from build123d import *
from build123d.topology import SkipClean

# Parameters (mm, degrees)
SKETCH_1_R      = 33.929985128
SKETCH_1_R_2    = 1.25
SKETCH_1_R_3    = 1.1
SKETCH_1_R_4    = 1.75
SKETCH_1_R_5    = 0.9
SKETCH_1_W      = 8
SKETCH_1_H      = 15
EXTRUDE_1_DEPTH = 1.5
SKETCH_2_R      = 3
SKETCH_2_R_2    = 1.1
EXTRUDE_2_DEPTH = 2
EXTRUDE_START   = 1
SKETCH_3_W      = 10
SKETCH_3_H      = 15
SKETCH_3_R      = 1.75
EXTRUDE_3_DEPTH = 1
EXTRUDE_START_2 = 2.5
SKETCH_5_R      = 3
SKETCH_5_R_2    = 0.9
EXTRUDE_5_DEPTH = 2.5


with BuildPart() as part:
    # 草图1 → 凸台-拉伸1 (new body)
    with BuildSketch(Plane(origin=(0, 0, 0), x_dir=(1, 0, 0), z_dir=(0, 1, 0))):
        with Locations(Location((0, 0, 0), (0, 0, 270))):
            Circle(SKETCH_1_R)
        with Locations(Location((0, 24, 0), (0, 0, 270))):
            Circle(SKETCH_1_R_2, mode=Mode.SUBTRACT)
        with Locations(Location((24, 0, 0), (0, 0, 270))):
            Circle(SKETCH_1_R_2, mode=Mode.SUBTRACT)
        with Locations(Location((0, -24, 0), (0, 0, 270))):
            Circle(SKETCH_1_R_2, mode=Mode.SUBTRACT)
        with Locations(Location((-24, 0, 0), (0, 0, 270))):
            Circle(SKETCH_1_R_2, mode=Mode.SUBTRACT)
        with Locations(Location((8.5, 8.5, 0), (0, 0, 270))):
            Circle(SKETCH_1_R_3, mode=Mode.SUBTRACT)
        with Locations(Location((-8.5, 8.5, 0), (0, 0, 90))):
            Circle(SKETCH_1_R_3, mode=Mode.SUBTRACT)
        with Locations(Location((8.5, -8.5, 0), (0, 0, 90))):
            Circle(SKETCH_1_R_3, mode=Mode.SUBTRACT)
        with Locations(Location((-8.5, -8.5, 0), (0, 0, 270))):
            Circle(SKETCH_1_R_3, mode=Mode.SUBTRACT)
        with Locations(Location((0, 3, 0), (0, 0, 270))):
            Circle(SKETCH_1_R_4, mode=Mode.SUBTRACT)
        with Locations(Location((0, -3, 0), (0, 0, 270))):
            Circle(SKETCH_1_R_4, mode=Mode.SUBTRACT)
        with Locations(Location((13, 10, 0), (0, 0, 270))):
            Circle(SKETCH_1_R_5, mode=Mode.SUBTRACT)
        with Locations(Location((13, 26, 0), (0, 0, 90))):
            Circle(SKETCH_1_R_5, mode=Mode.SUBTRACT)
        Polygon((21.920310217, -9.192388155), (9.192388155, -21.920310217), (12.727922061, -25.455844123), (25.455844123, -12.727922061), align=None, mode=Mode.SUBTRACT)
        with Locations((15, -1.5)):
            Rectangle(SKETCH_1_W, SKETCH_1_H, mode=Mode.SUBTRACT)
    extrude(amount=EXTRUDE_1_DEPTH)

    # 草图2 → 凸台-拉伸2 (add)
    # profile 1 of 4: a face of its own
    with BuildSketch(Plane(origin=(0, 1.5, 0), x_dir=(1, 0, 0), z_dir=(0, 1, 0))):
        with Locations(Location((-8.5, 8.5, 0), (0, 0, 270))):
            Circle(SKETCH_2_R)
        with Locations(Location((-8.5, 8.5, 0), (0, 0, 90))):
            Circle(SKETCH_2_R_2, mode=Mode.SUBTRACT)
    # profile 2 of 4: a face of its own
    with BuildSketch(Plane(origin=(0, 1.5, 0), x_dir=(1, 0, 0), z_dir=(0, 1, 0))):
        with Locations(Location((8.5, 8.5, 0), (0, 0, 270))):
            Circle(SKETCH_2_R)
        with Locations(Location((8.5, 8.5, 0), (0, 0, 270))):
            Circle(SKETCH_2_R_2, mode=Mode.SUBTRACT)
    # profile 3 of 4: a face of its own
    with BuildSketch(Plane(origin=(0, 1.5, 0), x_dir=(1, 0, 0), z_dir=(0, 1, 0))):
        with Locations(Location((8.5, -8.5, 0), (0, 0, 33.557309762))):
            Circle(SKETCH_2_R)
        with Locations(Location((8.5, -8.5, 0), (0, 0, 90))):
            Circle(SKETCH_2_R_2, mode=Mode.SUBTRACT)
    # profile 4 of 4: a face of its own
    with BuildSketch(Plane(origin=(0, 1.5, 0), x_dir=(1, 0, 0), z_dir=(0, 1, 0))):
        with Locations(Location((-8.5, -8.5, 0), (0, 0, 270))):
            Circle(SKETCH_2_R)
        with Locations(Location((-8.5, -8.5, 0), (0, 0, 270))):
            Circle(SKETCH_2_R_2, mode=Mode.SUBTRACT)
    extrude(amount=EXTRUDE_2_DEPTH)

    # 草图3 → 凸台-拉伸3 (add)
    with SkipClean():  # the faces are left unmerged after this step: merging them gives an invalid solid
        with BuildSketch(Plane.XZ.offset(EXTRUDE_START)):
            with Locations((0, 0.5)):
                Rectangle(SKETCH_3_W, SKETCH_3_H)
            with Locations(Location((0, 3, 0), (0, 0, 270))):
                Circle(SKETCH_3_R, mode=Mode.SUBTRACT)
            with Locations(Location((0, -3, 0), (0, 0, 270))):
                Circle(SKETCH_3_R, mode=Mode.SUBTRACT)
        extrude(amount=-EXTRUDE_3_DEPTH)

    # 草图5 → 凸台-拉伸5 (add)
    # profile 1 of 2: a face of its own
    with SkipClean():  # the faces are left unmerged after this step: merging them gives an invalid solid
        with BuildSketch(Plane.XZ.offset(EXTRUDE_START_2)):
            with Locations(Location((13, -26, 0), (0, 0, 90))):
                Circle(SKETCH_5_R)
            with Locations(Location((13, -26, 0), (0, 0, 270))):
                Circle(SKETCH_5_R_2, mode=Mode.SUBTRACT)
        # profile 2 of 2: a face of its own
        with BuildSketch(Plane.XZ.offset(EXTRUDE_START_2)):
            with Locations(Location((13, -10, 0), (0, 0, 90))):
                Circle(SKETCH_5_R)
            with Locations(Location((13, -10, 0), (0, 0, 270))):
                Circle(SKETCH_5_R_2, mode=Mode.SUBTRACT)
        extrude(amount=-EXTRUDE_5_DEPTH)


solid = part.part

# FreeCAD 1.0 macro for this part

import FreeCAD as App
import Part
import Sketcher
Q = App.Units.Quantity

doc = App.newDocument("Part")
params = doc.addObject("Spreadsheet::Sheet", "Params")
for row, (alias, value) in enumerate([
    ("sketch1_diameter", "2.5 mm"),
    ("sketch1_diameter2", "2.2 mm"),
    ("sketch1_diameter3", "3.5 mm"),
    ("sketch1_diameter4", "1.8 mm"),
    ("sketch1_width", "8 mm"),
    ("pad1_length", "1.5 mm"),
    ("sketch2_diameter", "6 mm"),
    ("sketch2_diameter2", "2.2 mm"),
    ("pad2_length", "2 mm"),
    ("sketch3_diameter", "3.5 mm"),
    ("sketch3_width", "10 mm"),
    ("sketch3_height", "15 mm"),
    ("pad3_length", "1 mm"),
    ("sketch4_diameter", "6 mm"),
    ("sketch4_diameter2", "1.8 mm"),
    ("pad4_length", "2.5 mm"),
], start=1):
    params.set(f"A{row}", alias)
    params.set(f"B{row}", "=" + value)
    params.setAlias(f"B{row}", alias)

body = doc.addObject("PartDesign::Body", "Body")

# Sketch on XZ plane
sketch1 = body.newObject("Sketcher::SketchObject", "Sketch")
sketch1.AttachmentSupport = (doc.getObject("XZ_Plane"), [""])
sketch1.MapMode = "FlatFace"
sketch1.addGeometry([
    Part.Circle(App.Vector(0, 0, 0), App.Vector(0, 0, 1), 33.9),  # 0
    Part.Circle(App.Vector(0, -24, 0), App.Vector(0, 0, 1), 1.2),  # 1
    Part.Circle(App.Vector(-8.5, -8.5, 0), App.Vector(0, 0, 1), 1.1),  # 2
    Part.Circle(App.Vector(0, -3, 0), App.Vector(0, 0, 1), 1.8),  # 3
    Part.Circle(App.Vector(-24, 0, 0), App.Vector(0, 0, 1), 1.2),  # 4
    Part.Circle(App.Vector(-8.5, 8.5, 0), App.Vector(0, 0, 1), 1.1),  # 5
    Part.Circle(App.Vector(0, 3, 0), App.Vector(0, 0, 1), 1.8),  # 6
    Part.Circle(App.Vector(0, 24, 0), App.Vector(0, 0, 1), 1.2),  # 7
    Part.Circle(App.Vector(8.5, -8.5, 0), App.Vector(0, 0, 1), 1.1),  # 8
    Part.Circle(App.Vector(13, -26, 0), App.Vector(0, 0, 1), 0.9),  # 9
    Part.Circle(App.Vector(13, -10, 0), App.Vector(0, 0, 1), 0.9),  # 10
    Part.Circle(App.Vector(8.5, 8.5, 0), App.Vector(0, 0, 1), 1.1),  # 11
    Part.LineSegment(App.Vector(19, 9, 0), App.Vector(11, 9, 0)),  # 12
    Part.LineSegment(App.Vector(11, 9, 0), App.Vector(11, -6, 0)),  # 13
    Part.LineSegment(App.Vector(11, -6, 0), App.Vector(19, -6, 0)),  # 14
    Part.LineSegment(App.Vector(19, -6, 0), App.Vector(19, 9, 0)),  # 15
    Part.Circle(App.Vector(24, 0, 0), App.Vector(0, 0, 1), 1.2),  # 16
    Part.LineSegment(App.Vector(9.2, 21.9, 0), App.Vector(21.9, 9.2, 0)),  # 17
    Part.LineSegment(App.Vector(21.9, 9.2, 0), App.Vector(25.5, 12.7, 0)),  # 18
    Part.LineSegment(App.Vector(25.5, 12.7, 0), App.Vector(12.7, 25.5, 0)),  # 19
    Part.LineSegment(App.Vector(12.7, 25.5, 0), App.Vector(9.2, 21.9, 0)),  # 20
], False)
sketch1.addConstraint([
    Sketcher.Constraint("Coincident", 12, 2, 13, 1),
    Sketcher.Constraint("Coincident", 13, 2, 14, 1),
    Sketcher.Constraint("Coincident", 14, 2, 15, 1),
    Sketcher.Constraint("Coincident", 15, 2, 12, 1),
    Sketcher.Constraint("Coincident", 17, 2, 18, 1),
    Sketcher.Constraint("Coincident", 18, 2, 19, 1),
    Sketcher.Constraint("Coincident", 19, 2, 20, 1),
    Sketcher.Constraint("Coincident", 20, 2, 17, 1),
    Sketcher.Constraint("Horizontal", 12),
    Sketcher.Constraint("Vertical", 13),
    Sketcher.Constraint("Horizontal", 14),
    Sketcher.Constraint("Vertical", 15),
    Sketcher.Constraint("Coincident", 0, 3, -1, 1),
    Sketcher.Constraint("Equal", 1, 4),
    Sketcher.Constraint("Equal", 2, 5),
    Sketcher.Constraint("Equal", 3, 6),
    Sketcher.Constraint("Equal", 4, 7),
    Sketcher.Constraint("Equal", 5, 8),
    Sketcher.Constraint("Equal", 9, 10),
    Sketcher.Constraint("Equal", 8, 11),
    Sketcher.Constraint("Equal", 7, 16),
    Sketcher.Constraint("Symmetric", 3, 3, 6, 3, -1, 1),
    Sketcher.Constraint("Symmetric", 1, 3, 7, 3, -1, 1),
    Sketcher.Constraint("Symmetric", 5, 3, 8, 3, -1, 1),
    Sketcher.Constraint("Symmetric", 2, 3, 11, 3, -1, 1),
    Sketcher.Constraint("Symmetric", 4, 3, 16, 3, -1, 1),
    Sketcher.Constraint("Symmetric", 2, 3, 8, 3, -2),
    Sketcher.Constraint("PointOnObject", 1, 3, -2),
    Sketcher.Constraint("PointOnObject", 3, 3, -2),
    Sketcher.Constraint("PointOnObject", 4, 3, -1),
    Sketcher.Constraint("Perpendicular", 17, 18),
    Sketcher.Constraint("Perpendicular", 18, 19),
    Sketcher.Constraint("Perpendicular", 19, 20),
    Sketcher.Constraint("Vertical", 9, 3, 10, 3),
    Sketcher.Constraint("Diameter", 1, Q("2.5 mm")),
    Sketcher.Constraint("Diameter", 2, Q("2.2 mm")),
    Sketcher.Constraint("Diameter", 3, Q("3.5 mm")),
    Sketcher.Constraint("Diameter", 9, Q("1.8 mm")),
    Sketcher.Constraint("DistanceX", 12, 2, 12, 1, Q("8 mm")),
    Sketcher.Constraint("DistanceY", 13, 2, 13, 1, Q("15 mm")),
    Sketcher.Constraint("Angle", 17, Q("-45 deg")),
    Sketcher.Constraint("Distance", 17, Q("18 mm")),
    Sketcher.Constraint("Distance", 18, Q("5 mm")),
    Sketcher.Constraint("DistanceY", 1, 3, -1, 1, Q("24 mm")),
    Sketcher.Constraint("DistanceY", 3, 3, -1, 1, Q("3 mm")),
    Sketcher.Constraint("DistanceX", 4, 3, -1, 1, Q("24 mm")),
    Sketcher.Constraint("DistanceX", -1, 1, 9, 3, Q("13 mm")),
    Sketcher.Constraint("DistanceY", 9, 3, -1, 1, Q("26 mm")),
    Sketcher.Constraint("DistanceY", 10, 3, -1, 1, Q("10 mm")),
    Sketcher.Constraint("DistanceX", -1, 1, 12, 2, Q("11 mm")),
    Sketcher.Constraint("DistanceY", -1, 1, 12, 2, Q("9 mm")),
    Sketcher.Constraint("DistanceY", 2, 3, 5, 3, Q("17 mm")),
    Sketcher.Constraint("DistanceX", 2, 3, 8, 3, Q("17 mm")),
    Sketcher.Constraint("Diameter", 0, Q("67.85997 mm")),
    Sketcher.Constraint("DistanceX", -1, 1, 17, 2, Q("21.92031 mm")),
    Sketcher.Constraint("DistanceY", -1, 1, 17, 2, Q("9.192388 mm")),
])
sketch1.setExpression("Constraints[34]", "Params.sketch1_diameter")
sketch1.setExpression("Constraints[35]", "Params.sketch1_diameter2")
sketch1.setExpression("Constraints[36]", "Params.sketch1_diameter3")
sketch1.setExpression("Constraints[37]", "Params.sketch1_diameter4")
sketch1.setExpression("Constraints[38]", "Params.sketch1_width")
pad1 = body.newObject("PartDesign::Pad", "Pad")
pad1.Profile = sketch1
pad1.setExpression("Length", "Params.pad1_length")
pad1.Reversed = True

# Sketch on XZ plane
sketch2 = body.newObject("Sketcher::SketchObject", "Sketch001")
sketch2.AttachmentSupport = (doc.getObject("XZ_Plane"), [""])
sketch2.MapMode = "FlatFace"
sketch2.AttachmentOffset = App.Placement(App.Vector(0, 0, -1.5), App.Rotation())
sketch2.addGeometry([
    Part.Circle(App.Vector(-8.5, -8.5, 0), App.Vector(0, 0, 1), 3),  # 0
    Part.Circle(App.Vector(-8.5, -8.5, 0), App.Vector(0, 0, 1), 1.1),  # 1
    Part.Circle(App.Vector(8.5, -8.5, 0), App.Vector(0, 0, 1), 3),  # 2
    Part.Circle(App.Vector(8.5, -8.5, 0), App.Vector(0, 0, 1), 1.1),  # 3
    Part.Circle(App.Vector(8.5, 8.5, 0), App.Vector(0, 0, 1), 3),  # 4
    Part.Circle(App.Vector(8.5, 8.5, 0), App.Vector(0, 0, 1), 1.1),  # 5
    Part.Circle(App.Vector(-8.5, 8.5, 0), App.Vector(0, 0, 1), 3),  # 6
    Part.Circle(App.Vector(-8.5, 8.5, 0), App.Vector(0, 0, 1), 1.1),  # 7
], False)
sketch2.addConstraint([
    Sketcher.Constraint("Coincident", 1, 3, 0, 3),
    Sketcher.Constraint("Coincident", 3, 3, 2, 3),
    Sketcher.Constraint("Coincident", 5, 3, 4, 3),
    Sketcher.Constraint("Coincident", 7, 3, 6, 3),
    Sketcher.Constraint("Equal", 0, 2),
    Sketcher.Constraint("Equal", 1, 3),
    Sketcher.Constraint("Equal", 2, 4),
    Sketcher.Constraint("Equal", 3, 5),
    Sketcher.Constraint("Equal", 4, 6),
    Sketcher.Constraint("Equal", 5, 7),
    Sketcher.Constraint("Symmetric", 0, 3, 4, 3, -1, 1),
    Sketcher.Constraint("Symmetric", 2, 3, 6, 3, -1, 1),
    Sketcher.Constraint("Symmetric", 0, 3, 2, 3, -2),
    Sketcher.Constraint("Diameter", 0, Q("6 mm")),
    Sketcher.Constraint("Diameter", 1, Q("2.2 mm")),
    Sketcher.Constraint("DistanceX", 0, 3, 2, 3, Q("17 mm")),
    Sketcher.Constraint("DistanceY", 2, 3, 4, 3, Q("17 mm")),
])
sketch2.setExpression("Constraints[13]", "Params.sketch2_diameter")
sketch2.setExpression("Constraints[14]", "Params.sketch2_diameter2")
pad2 = body.newObject("PartDesign::Pad", "Pad001")
pad2.Profile = sketch2
pad2.setExpression("Length", "Params.pad2_length")
pad2.Reversed = True

# Sketch on XZ plane
sketch3 = body.newObject("Sketcher::SketchObject", "Sketch002")
sketch3.AttachmentSupport = (doc.getObject("XZ_Plane"), [""])
sketch3.MapMode = "FlatFace"
sketch3.AttachmentOffset = App.Placement(App.Vector(0, 0, 1), App.Rotation())
sketch3.addGeometry([
    Part.LineSegment(App.Vector(-5, 8, 0), App.Vector(-5, -7, 0)),  # 0
    Part.LineSegment(App.Vector(-5, -7, 0), App.Vector(5, -7, 0)),  # 1
    Part.LineSegment(App.Vector(5, -7, 0), App.Vector(5, 8, 0)),  # 2
    Part.LineSegment(App.Vector(5, 8, 0), App.Vector(-5, 8, 0)),  # 3
    Part.Circle(App.Vector(0, -3, 0), App.Vector(0, 0, 1), 1.8),  # 4
    Part.Circle(App.Vector(0, 3, 0), App.Vector(0, 0, 1), 1.8),  # 5
], False)
sketch3.addConstraint([
    Sketcher.Constraint("Coincident", 0, 2, 1, 1),
    Sketcher.Constraint("Coincident", 1, 2, 2, 1),
    Sketcher.Constraint("Coincident", 2, 2, 3, 1),
    Sketcher.Constraint("Coincident", 3, 2, 0, 1),
    Sketcher.Constraint("Vertical", 0),
    Sketcher.Constraint("Horizontal", 1),
    Sketcher.Constraint("Vertical", 2),
    Sketcher.Constraint("Horizontal", 3),
    Sketcher.Constraint("Equal", 4, 5),
    Sketcher.Constraint("Symmetric", 4, 3, 5, 3, -1, 1),
    Sketcher.Constraint("PointOnObject", 4, 3, -2),
    Sketcher.Constraint("Diameter", 4, Q("3.5 mm")),
    Sketcher.Constraint("DistanceX", 1, 1, 1, 2, Q("10 mm")),
    Sketcher.Constraint("DistanceY", 0, 2, 0, 1, Q("15 mm")),
    Sketcher.Constraint("DistanceY", 4, 3, -1, 1, Q("3 mm")),
    Sketcher.Constraint("DistanceX", 0, 2, -1, 1, Q("5 mm")),
    Sketcher.Constraint("DistanceY", 0, 2, -1, 1, Q("7 mm")),
])
sketch3.setExpression("Constraints[11]", "Params.sketch3_diameter")
sketch3.setExpression("Constraints[12]", "Params.sketch3_width")
sketch3.setExpression("Constraints[13]", "Params.sketch3_height")
pad3 = body.newObject("PartDesign::Pad", "Pad002")
pad3.Profile = sketch3
pad3.setExpression("Length", "Params.pad3_length")
pad3.Reversed = True

# Sketch on XZ plane
sketch4 = body.newObject("Sketcher::SketchObject", "Sketch003")
sketch4.AttachmentSupport = (doc.getObject("XZ_Plane"), [""])
sketch4.MapMode = "FlatFace"
sketch4.AttachmentOffset = App.Placement(App.Vector(0, 0, 2.5), App.Rotation())
sketch4.addGeometry([
    Part.Circle(App.Vector(13, -26, 0), App.Vector(0, 0, 1), 3),
    Part.Circle(App.Vector(13, -26, 0), App.Vector(0, 0, 1), 0.9),
    Part.Circle(App.Vector(13, -10, 0), App.Vector(0, 0, 1), 3),
    Part.Circle(App.Vector(13, -10, 0), App.Vector(0, 0, 1), 0.9),
], False)
sketch4.addConstraint([
    Sketcher.Constraint("Coincident", 1, 3, 0, 3),
    Sketcher.Constraint("Coincident", 3, 3, 2, 3),
    Sketcher.Constraint("Equal", 0, 2),
    Sketcher.Constraint("Equal", 1, 3),
    Sketcher.Constraint("Vertical", 1, 3, 2, 3),
    Sketcher.Constraint("Diameter", 0, Q("6 mm")),
    Sketcher.Constraint("Diameter", 1, Q("1.8 mm")),
    Sketcher.Constraint("DistanceX", -1, 1, 0, 3, Q("13 mm")),
    Sketcher.Constraint("DistanceY", 0, 3, -1, 1, Q("26 mm")),
    Sketcher.Constraint("DistanceY", 2, 3, -1, 1, Q("10 mm")),
])
sketch4.setExpression("Constraints[5]", "Params.sketch4_diameter")
sketch4.setExpression("Constraints[6]", "Params.sketch4_diameter2")
pad4 = body.newObject("PartDesign::Pad", "Pad003")
pad4.Profile = sketch4
pad4.setExpression("Length", "Params.pad4_length")
pad4.Reversed = True

doc.recompute()
